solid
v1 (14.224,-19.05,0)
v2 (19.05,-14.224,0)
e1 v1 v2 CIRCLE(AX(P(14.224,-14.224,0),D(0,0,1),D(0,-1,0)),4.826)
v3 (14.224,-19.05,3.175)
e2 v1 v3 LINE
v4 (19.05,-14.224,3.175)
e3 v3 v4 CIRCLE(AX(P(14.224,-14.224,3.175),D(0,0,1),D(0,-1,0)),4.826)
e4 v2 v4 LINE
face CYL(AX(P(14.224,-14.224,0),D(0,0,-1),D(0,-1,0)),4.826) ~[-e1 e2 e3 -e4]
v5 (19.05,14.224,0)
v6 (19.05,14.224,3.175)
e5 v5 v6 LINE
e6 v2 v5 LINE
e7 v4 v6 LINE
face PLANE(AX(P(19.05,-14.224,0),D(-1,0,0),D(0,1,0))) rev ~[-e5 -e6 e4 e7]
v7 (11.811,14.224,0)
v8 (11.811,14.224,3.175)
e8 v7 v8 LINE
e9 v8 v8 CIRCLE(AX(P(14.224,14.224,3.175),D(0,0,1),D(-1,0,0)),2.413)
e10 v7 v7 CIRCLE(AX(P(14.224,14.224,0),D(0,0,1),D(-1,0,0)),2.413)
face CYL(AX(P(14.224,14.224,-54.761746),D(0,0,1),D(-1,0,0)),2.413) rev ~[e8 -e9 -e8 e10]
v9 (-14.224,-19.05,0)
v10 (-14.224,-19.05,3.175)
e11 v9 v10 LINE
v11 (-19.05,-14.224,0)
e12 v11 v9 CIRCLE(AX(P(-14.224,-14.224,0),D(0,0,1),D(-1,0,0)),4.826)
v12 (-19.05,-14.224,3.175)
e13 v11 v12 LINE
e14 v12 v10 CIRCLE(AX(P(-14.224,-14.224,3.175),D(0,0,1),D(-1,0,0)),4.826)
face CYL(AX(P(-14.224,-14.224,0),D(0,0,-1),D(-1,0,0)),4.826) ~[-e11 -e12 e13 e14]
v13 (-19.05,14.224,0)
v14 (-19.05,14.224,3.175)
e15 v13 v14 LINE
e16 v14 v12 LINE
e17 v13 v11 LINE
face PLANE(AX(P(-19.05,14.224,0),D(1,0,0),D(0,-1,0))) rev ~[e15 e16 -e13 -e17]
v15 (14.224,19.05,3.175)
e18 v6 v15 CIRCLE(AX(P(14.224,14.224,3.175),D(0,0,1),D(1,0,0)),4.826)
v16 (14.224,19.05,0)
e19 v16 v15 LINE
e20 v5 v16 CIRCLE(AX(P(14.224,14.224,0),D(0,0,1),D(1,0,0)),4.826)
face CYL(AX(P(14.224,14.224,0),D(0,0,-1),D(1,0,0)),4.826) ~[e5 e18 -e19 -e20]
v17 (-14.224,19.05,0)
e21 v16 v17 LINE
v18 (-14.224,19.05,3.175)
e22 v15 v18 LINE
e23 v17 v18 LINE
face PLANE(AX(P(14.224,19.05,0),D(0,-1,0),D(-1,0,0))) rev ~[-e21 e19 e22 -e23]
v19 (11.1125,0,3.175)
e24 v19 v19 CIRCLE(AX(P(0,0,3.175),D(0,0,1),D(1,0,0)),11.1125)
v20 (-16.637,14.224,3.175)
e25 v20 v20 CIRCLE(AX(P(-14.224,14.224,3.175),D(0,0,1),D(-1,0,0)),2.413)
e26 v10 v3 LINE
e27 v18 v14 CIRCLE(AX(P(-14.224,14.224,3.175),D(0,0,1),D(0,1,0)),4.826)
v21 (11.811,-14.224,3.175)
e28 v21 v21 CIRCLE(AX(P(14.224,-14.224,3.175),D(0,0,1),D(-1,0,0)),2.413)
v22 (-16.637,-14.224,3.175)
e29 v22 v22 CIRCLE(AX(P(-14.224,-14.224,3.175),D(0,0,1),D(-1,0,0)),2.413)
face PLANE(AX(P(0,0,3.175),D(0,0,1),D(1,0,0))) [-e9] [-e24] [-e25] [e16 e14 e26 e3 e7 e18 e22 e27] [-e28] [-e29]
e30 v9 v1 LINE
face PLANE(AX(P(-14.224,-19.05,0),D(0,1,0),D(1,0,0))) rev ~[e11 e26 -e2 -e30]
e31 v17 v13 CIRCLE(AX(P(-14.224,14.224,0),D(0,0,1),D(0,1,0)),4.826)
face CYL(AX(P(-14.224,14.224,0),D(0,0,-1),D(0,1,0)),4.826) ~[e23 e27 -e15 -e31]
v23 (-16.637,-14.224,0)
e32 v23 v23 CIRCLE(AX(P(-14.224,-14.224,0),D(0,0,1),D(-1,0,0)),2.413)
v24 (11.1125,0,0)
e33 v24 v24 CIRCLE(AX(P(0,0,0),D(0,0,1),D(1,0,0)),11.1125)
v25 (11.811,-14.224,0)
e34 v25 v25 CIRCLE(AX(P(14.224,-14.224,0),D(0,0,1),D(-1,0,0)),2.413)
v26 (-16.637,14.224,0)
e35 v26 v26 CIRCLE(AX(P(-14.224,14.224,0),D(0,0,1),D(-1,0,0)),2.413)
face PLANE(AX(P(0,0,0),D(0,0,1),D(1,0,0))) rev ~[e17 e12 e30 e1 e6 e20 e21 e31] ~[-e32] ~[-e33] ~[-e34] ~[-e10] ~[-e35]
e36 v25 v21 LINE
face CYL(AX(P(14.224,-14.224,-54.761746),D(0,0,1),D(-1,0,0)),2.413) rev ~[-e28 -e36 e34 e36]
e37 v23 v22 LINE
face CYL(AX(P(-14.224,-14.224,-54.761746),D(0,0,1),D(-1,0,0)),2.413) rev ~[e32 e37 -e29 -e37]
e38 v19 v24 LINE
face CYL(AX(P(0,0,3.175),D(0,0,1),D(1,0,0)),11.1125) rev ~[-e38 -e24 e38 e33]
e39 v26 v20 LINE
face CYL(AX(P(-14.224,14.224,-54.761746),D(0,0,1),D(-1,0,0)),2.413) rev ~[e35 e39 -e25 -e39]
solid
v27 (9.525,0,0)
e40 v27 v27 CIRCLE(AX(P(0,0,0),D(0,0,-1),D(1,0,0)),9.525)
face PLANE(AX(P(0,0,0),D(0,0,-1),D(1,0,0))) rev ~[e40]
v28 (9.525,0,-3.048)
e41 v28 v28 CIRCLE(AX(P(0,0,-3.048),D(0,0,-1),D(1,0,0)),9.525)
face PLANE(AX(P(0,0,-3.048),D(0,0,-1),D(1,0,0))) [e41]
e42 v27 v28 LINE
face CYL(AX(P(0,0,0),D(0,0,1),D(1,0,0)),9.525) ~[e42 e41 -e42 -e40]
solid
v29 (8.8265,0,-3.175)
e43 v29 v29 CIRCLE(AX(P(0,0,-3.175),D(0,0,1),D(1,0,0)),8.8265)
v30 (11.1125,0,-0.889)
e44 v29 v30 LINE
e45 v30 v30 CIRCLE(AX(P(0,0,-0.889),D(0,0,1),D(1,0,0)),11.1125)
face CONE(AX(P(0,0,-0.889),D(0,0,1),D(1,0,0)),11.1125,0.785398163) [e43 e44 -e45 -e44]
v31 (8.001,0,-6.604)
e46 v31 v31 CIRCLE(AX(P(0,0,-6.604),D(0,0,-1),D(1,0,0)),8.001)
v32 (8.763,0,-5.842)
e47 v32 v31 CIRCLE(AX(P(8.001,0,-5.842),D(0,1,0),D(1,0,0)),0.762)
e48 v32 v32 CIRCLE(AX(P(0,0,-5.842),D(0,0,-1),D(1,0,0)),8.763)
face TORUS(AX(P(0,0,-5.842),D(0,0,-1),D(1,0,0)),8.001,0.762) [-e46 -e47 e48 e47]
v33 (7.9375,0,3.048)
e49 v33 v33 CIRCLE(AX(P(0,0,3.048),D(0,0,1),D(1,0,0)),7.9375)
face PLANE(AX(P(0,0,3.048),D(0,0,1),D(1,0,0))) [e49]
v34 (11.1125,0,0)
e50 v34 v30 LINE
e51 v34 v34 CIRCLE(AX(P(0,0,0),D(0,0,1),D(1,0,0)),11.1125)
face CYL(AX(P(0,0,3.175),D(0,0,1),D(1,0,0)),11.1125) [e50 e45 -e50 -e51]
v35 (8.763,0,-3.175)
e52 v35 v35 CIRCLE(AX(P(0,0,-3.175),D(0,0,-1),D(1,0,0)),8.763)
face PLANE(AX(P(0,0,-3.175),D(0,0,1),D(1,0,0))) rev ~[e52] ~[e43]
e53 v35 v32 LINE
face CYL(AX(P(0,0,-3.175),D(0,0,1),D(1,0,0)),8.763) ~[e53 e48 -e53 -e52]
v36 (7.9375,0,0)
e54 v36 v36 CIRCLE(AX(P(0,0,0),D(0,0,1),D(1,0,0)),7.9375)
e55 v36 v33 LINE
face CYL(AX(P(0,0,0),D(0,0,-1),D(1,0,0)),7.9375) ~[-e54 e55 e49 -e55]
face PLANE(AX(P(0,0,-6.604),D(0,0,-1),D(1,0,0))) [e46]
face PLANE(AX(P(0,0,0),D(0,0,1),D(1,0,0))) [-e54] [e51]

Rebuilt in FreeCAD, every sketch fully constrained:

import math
import FreeCAD as App
import Part
import Sketcher

V = App.Vector
Q = App.Units.Quantity


def edges_at(feature, points):
    """Names of the edges that pass closest to the given points."""
    edges = feature.Shape.Edges
    near = lambda p: min(range(len(edges)), key=lambda i: edges[i].distToShape(Part.Vertex(*p))[0])
    return sorted({f"Edge{near(p) + 1}" for p in points})

doc = App.newDocument("Part")
body = doc.addObject("PartDesign::Body", "Body")
body.AllowCompound = True

sketch1 = body.newObject("Sketcher::SketchObject", "Sketch")
sketch1.AttachmentSupport = (doc.getObject("XY_Plane"), [""])
sketch1.MapMode = "FlatFace"
sketch1.addGeometry(Part.ArcOfCircle(Part.Circle(V(14.2, 14.2, 0), V(0, 0, 1), 4.8), math.radians(0), math.radians(90)), False)
sketch1.addGeometry(Part.LineSegment(V(14.2, 19.1, 0), V(-14.2, 19.1, 0)), False)
sketch1.addGeometry(Part.ArcOfCircle(Part.Circle(V(-14.2, 14.2, 0), V(0, 0, 1), 4.8), math.radians(90), math.radians(180)), False)
sketch1.addGeometry(Part.LineSegment(V(-19.1, 14.2, 0), V(-19.1, -14.2, 0)), False)
sketch1.addGeometry(Part.ArcOfCircle(Part.Circle(V(-14.2, -14.2, 0), V(0, 0, 1), 4.8), math.radians(180), math.radians(270)), False)
sketch1.addGeometry(Part.LineSegment(V(-14.2, -19.1, 0), V(14.2, -19.1, 0)), False)
sketch1.addGeometry(Part.ArcOfCircle(Part.Circle(V(14.2, -14.2, 0), V(0, 0, 1), 4.8), math.radians(-90), math.radians(0)), False)
sketch1.addGeometry(Part.LineSegment(V(19.1, -14.2, 0), V(19.1, 14.2, 0)), False)
sketch1.addConstraint(Sketcher.Constraint("Tangent", 0, 2, 1, 1))
sketch1.addConstraint(Sketcher.Constraint("Tangent", 1, 2, 2, 1))
sketch1.addConstraint(Sketcher.Constraint("Tangent", 2, 2, 3, 1))
sketch1.addConstraint(Sketcher.Constraint("Tangent", 3, 2, 4, 1))
sketch1.addConstraint(Sketcher.Constraint("Tangent", 4, 2, 5, 1))
sketch1.addConstraint(Sketcher.Constraint("Tangent", 5, 2, 6, 1))
sketch1.addConstraint(Sketcher.Constraint("Tangent", 6, 2, 7, 1))
sketch1.addConstraint(Sketcher.Constraint("Tangent", 7, 2, 0, 1))
sketch1.addConstraint(Sketcher.Constraint("Horizontal", 1))
sketch1.addConstraint(Sketcher.Constraint("Vertical", 3))
sketch1.addConstraint(Sketcher.Constraint("Horizontal", 5))
sketch1.addConstraint(Sketcher.Constraint("Vertical", 7))
sketch1.addConstraint(Sketcher.Constraint("Equal", 0, 2))
sketch1.addConstraint(Sketcher.Constraint("Equal", 2, 4))
sketch1.addConstraint(Sketcher.Constraint("Equal", 4, 6))
sketch1.addConstraint(Sketcher.Constraint("Symmetric", 0, 3, 4, 3, -1, 1))
sketch1.addConstraint(Sketcher.Constraint("Equal", 5, 3))
sketch1.addConstraint(Sketcher.Constraint("Radius", 0, Q("0.19 in")))
sketch1.addConstraint(Sketcher.Constraint("DistanceX", 1, 2, 1, 1, Q("1.12 in")))
pad1 = body.newObject("PartDesign::Pad", "Pad")
pad1.Profile = sketch1
pad1.Length = Q("0.125 in")

sketch2 = body.newObject("Sketcher::SketchObject", "Sketch001")
sketch2.AttachmentSupport = (doc.getObject("XY_Plane"), [""])
sketch2.MapMode = "FlatFace"
sketch2.AttachmentOffset = App.Placement(V(0, 0, 0.125 * 25.4), App.Rotation())
sketch2.addGeometry(Part.Circle(V(0, 0, 0), V(0, 0, 1), 11), False)
sketch2.addConstraint(Sketcher.Constraint("Coincident", 0, 3, -1, 1))
sketch2.addConstraint(Sketcher.Constraint("Diameter", 0, Q("0.875 in")))
pad2 = body.newObject("PartDesign::Pad", "Pad001")
pad2.Profile = sketch2
pad2.Length = Q("0.25 in")
pad2.Reversed = True

sketch3 = body.newObject("Sketcher::SketchObject", "Sketch002")
sketch3.AttachmentSupport = (doc.getObject("XY_Plane"), [""])
sketch3.MapMode = "FlatFace"
sketch3.AttachmentOffset = App.Placement(V(0, 0, 0.125 * 25.4), App.Rotation())
sketch3.addGeometry(Part.Circle(V(0, 0, 0), V(0, 0, 1), 11), False)
sketch3.addConstraint(Sketcher.Constraint("Coincident", 0, 3, -1, 1))
sketch3.addConstraint(Sketcher.Constraint("Diameter", 0, Q("0.875 in")))
pocket1 = body.newObject("PartDesign::Pocket", "Pocket")
pocket1.Profile = sketch3
pocket1.Length = Q("0.125 in")

sketch4 = body.newObject("Sketcher::SketchObject", "Sketch003")
sketch4.AttachmentSupport = (doc.getObject("XY_Plane"), [""])
sketch4.MapMode = "FlatFace"
sketch4.addGeometry(Part.Circle(V(0, 0, 0), V(0, 0, 1), 8), False)
sketch4.addConstraint(Sketcher.Constraint("Coincident", 0, 3, -1, 1))
sketch4.addConstraint(Sketcher.Constraint("Diameter", 0, Q("0.625 in")))
pad3 = body.newObject("PartDesign::Pad", "Pad002")
pad3.Profile = sketch4
pad3.Length = Q("0.12 in")

sketch5 = body.newObject("Sketcher::SketchObject", "Sketch004")
sketch5.AttachmentSupport = (doc.getObject("XY_Plane"), [""])
sketch5.MapMode = "FlatFace"
sketch5.AttachmentOffset = App.Placement(V(0, 0, -0.125 * 25.4), App.Rotation())
sketch5.addGeometry(Part.Circle(V(0, 0, 0), V(0, 0, 1), 9), False)
sketch5.addConstraint(Sketcher.Constraint("Coincident", 0, 3, -1, 1))
sketch5.addConstraint(Sketcher.Constraint("Diameter", 0, Q("0.69 in")))
pad4 = body.newObject("PartDesign::Pad", "Pad003")
pad4.Profile = sketch5
pad4.Length = Q("0.135 in")
pad4.Reversed = True
doc.recompute()

fillet = body.newObject("PartDesign::Fillet", "Fillet")
fillet.Base = (pad4, edges_at(pad4, [(-8.763, 0, -6.604)]))
fillet.Radius = Q("0.03 in")
doc.recompute()

chamfer = body.newObject("PartDesign::Chamfer", "Chamfer")
chamfer.Base = (fillet, edges_at(fillet, [(-11.113, 0, -3.175)]))
chamfer.Size = Q("0.09 in")

sketch6 = body.newObject("Sketcher::SketchObject", "Sketch005")
sketch6.AttachmentSupport = (doc.getObject("XY_Plane"), [""])
sketch6.MapMode = "FlatFace"
sketch6.addGeometry(Part.Circle(V(14.2, -14.2, 0), V(0, 0, 1), 2.4), False)
sketch6.addGeometry(Part.Circle(V(-14.2, -14.2, 0), V(0, 0, 1), 2.4), False)
sketch6.addGeometry(Part.Circle(V(-14.2, 14.2, 0), V(0, 0, 1), 2.4), False)
sketch6.addGeometry(Part.Circle(V(14.2, 14.2, 0), V(0, 0, 1), 2.4), False)
sketch6.addConstraint(Sketcher.Constraint("Equal", 0, 1))
sketch6.addConstraint(Sketcher.Constraint("Equal", 1, 2))
sketch6.addConstraint(Sketcher.Constraint("Equal", 2, 3))
sketch6.addConstraint(Sketcher.Constraint("Symmetric", 0, 3, 2, 3, -1, 1))
sketch6.addConstraint(Sketcher.Constraint("Symmetric", 1, 3, 3, 3, -1, 1))
sketch6.addConstraint(Sketcher.Constraint("Symmetric", 0, 3, 1, 3, -2))
sketch6.addConstraint(Sketcher.Constraint("Diameter", 0, Q("0.19 in")))
sketch6.addConstraint(Sketcher.Constraint("DistanceX", -1, 1, 0, 3, Q("0.56 in")))
sketch6.addConstraint(Sketcher.Constraint("DistanceY", 0, 3, -1, 1, Q("0.56 in")))
doc.recompute()
hole = body.newObject("PartDesign::Hole", "Hole")
hole.Profile = sketch6
hole.ThreadType = "None"
hole.Diameter = Q("0.19 in")
hole.DepthType = "ThroughAll"
hole.Reversed = True
body2 = doc.addObject("PartDesign::Body", "Body001")

sketch7 = body2.newObject("Sketcher::SketchObject", "Sketch006")
sketch7.AttachmentSupport = (doc.getObject("XY_Plane001"), [""])
sketch7.MapMode = "FlatFace"
sketch7.addGeometry(Part.Circle(V(0, 0, 0), V(0, 0, 1), 10), False)
sketch7.addConstraint(Sketcher.Constraint("Coincident", 0, 3, -1, 1))
sketch7.addConstraint(Sketcher.Constraint("Diameter", 0, Q("0.75 in")))
pad5 = body2.newObject("PartDesign::Pad", "Pad004")
pad5.Profile = sketch7
pad5.Length = Q("0.12 in")
pad5.Reversed = True

doc.recompute()
